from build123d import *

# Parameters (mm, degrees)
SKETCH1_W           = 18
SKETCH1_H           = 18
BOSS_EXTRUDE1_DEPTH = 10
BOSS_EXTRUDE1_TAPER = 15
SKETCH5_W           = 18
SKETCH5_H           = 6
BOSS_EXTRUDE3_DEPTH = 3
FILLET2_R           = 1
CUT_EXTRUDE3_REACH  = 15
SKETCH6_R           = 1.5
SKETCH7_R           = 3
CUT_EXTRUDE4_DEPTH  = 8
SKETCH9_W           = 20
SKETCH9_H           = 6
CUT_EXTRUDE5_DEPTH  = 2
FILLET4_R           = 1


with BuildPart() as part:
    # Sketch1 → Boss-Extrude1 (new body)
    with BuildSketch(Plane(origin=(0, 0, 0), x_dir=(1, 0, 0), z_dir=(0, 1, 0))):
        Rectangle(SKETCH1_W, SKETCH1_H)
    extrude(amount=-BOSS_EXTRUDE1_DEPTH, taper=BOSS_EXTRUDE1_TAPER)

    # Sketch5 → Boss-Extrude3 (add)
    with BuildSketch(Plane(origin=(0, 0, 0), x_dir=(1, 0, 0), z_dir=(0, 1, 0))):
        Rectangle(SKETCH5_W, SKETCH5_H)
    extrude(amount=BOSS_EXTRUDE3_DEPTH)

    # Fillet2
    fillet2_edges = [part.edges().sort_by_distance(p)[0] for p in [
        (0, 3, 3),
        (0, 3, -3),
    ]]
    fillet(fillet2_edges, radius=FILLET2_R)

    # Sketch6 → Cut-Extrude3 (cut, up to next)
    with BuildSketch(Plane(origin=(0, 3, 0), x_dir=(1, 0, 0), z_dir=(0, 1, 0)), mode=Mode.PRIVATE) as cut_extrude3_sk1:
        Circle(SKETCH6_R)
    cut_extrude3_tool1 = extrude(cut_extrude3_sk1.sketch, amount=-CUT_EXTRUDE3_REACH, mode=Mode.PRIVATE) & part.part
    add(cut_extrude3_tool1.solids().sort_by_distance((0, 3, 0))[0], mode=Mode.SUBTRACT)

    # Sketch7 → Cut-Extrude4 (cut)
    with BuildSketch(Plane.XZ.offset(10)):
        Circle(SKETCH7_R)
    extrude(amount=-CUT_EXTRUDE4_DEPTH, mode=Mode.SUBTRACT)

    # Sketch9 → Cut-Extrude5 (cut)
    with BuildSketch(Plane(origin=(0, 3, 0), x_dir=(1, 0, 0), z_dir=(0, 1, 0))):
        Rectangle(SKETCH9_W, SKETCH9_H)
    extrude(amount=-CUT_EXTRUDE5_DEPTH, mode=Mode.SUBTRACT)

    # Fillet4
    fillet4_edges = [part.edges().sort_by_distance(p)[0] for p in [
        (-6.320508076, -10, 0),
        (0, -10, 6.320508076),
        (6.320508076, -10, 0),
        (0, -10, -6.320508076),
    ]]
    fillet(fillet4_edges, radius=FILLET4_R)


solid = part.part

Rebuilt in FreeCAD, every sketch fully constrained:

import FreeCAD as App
import Part
import Sketcher
Q = App.Units.Quantity


def edges_at(feature, points):
    """Names of the edges that pass closest to the given points."""
    edges = feature.Shape.Edges
    near = lambda p: min(range(len(edges)), key=lambda i: edges[i].distToShape(Part.Vertex(*p))[0])
    return sorted({f"Edge{near(p) + 1}" for p in points})


def add_polygon(sketch, points):
    """Adds a closed chain of lines whose ends are joined by coincident constraints."""
    first, n = sketch.GeometryCount, len(points)
    for a, b in zip(points, points[1:] + points[:1]):
        sketch.addGeometry(Part.LineSegment(App.Vector(*a, 0), App.Vector(*b, 0)), False)
    for i in range(n):
        sketch.addConstraint(Sketcher.Constraint("Coincident", first + i, 2, first + (i + 1) % n, 1))

doc = App.newDocument("Part")
body = doc.addObject("PartDesign::Body", "Body")

# Sketch on XZ plane
sketch1 = doc.addObject("Sketcher::SketchObject", "Sketch")
body.addObject(sketch1)
sketch1.AttachmentSupport = (doc.XZ_Plane, [""])
sketch1.MapMode = "FlatFace"
add_polygon(sketch1, [(-9, -9), (-9, 9), (9, 9), (9, -9)])  # lines 0-3
sketch1.addConstraint([
    Sketcher.Constraint("Vertical", 0),
    Sketcher.Constraint("Horizontal", 1),
    Sketcher.Constraint("Vertical", 2),
    Sketcher.Constraint("Horizontal", 3),
    Sketcher.Constraint("Symmetric", 0, 2, 2, 2, -1, 1),
    Sketcher.Constraint("Equal", 3, 0),
    Sketcher.Constraint("DistanceX", 1, 1, 1, 2, Q("18 mm")),
])
pad1 = doc.addObject("PartDesign::Pad", "Pad")
body.addObject(pad1)
pad1.Profile = sketch1
pad1.Length = 10
pad1.TaperAngle = -15

# Sketch on XZ plane
sketch2 = doc.addObject("Sketcher::SketchObject", "Sketch001")
body.addObject(sketch2)
sketch2.AttachmentSupport = (doc.XZ_Plane, [""])
sketch2.MapMode = "FlatFace"
add_polygon(sketch2, [(-9, -3), (-9, 3), (9, 3), (9, -3)])  # lines 0-3
sketch2.addConstraint([
    Sketcher.Constraint("Vertical", 0),
    Sketcher.Constraint("Horizontal", 1),
    Sketcher.Constraint("Vertical", 2),
    Sketcher.Constraint("Horizontal", 3),
    Sketcher.Constraint("Symmetric", 0, 2, 2, 2, -1, 1),
    Sketcher.Constraint("DistanceX", 1, 1, 1, 2, Q("18 mm")),
    Sketcher.Constraint("DistanceY", 0, 1, 0, 2, Q("6 mm")),
])
pad2 = doc.addObject("PartDesign::Pad", "Pad001")
body.addObject(pad2)
pad2.Profile = sketch2
pad2.Length = 3
pad2.Reversed = True
doc.recompute()

fillet = doc.addObject("PartDesign::Fillet", "Fillet")
body.addObject(fillet)
fillet.Base = (pad2, edges_at(pad2, [(0, 3, 3), (0, 3, -3)]))
fillet.Radius = 1

# Sketch on XZ plane
sketch3 = doc.addObject("Sketcher::SketchObject", "Sketch002")
body.addObject(sketch3)
sketch3.AttachmentSupport = (doc.XZ_Plane, [""])
sketch3.MapMode = "FlatFace"
sketch3.AttachmentOffset = App.Placement(App.Vector(0, 0, -3), App.Rotation())
sketch3.addGeometry(Part.Circle(App.Vector(0, 0, 0), App.Vector(0, 0, 1), 1.5), False)
sketch3.addConstraint([
    Sketcher.Constraint("Coincident", 0, 3, -1, 1),
    Sketcher.Constraint("Diameter", 0, Q("3 mm")),
])
pocket1 = doc.addObject("PartDesign::Pocket", "Pocket")
body.addObject(pocket1)
pocket1.Profile = sketch3
pocket1.Type = "UpToFirst"
pocket1.Reversed = True

# Sketch on XZ plane
sketch4 = doc.addObject("Sketcher::SketchObject", "Sketch003")
body.addObject(sketch4)
sketch4.AttachmentSupport = (doc.XZ_Plane, [""])
sketch4.MapMode = "FlatFace"
sketch4.AttachmentOffset = App.Placement(App.Vector(0, 0, 10), App.Rotation())
sketch4.addGeometry(Part.Circle(App.Vector(0, 0, 0), App.Vector(0, 0, 1), 3), False)
sketch4.addConstraint([
    Sketcher.Constraint("Coincident", 0, 3, -1, 1),
    Sketcher.Constraint("Diameter", 0, Q("6 mm")),
])
pocket2 = doc.addObject("PartDesign::Pocket", "Pocket001")
body.addObject(pocket2)
pocket2.Profile = sketch4
pocket2.Length = 8

# Sketch on XZ plane
sketch5 = doc.addObject("Sketcher::SketchObject", "Sketch004")
body.addObject(sketch5)
sketch5.AttachmentSupport = (doc.XZ_Plane, [""])
sketch5.MapMode = "FlatFace"
sketch5.AttachmentOffset = App.Placement(App.Vector(0, 0, -3), App.Rotation())
add_polygon(sketch5, [(-10, -3), (-10, 3), (10, 3), (10, -3)])  # lines 0-3
sketch5.addConstraint([
    Sketcher.Constraint("Vertical", 0),
    Sketcher.Constraint("Horizontal", 1),
    Sketcher.Constraint("Vertical", 2),
    Sketcher.Constraint("Horizontal", 3),
    Sketcher.Constraint("Symmetric", 0, 2, 2, 2, -1, 1),
    Sketcher.Constraint("DistanceX", 1, 1, 1, 2, Q("20 mm")),
    Sketcher.Constraint("DistanceY", 0, 1, 0, 2, Q("6 mm")),
])
pocket3 = doc.addObject("PartDesign::Pocket", "Pocket002")
body.addObject(pocket3)
pocket3.Profile = sketch5
pocket3.Length = 2
pocket3.Reversed = True
doc.recompute()

fillet2 = doc.addObject("PartDesign::Fillet", "Fillet001")
body.addObject(fillet2)
fillet2.Base = (pocket3, edges_at(pocket3, [
    (-6.321, -10, 0),
    (0, -10, 6.321),
    (6.321, -10, 0),
    (0, -10, -6.321),
]))
fillet2.Radius = 1

doc.recompute()
